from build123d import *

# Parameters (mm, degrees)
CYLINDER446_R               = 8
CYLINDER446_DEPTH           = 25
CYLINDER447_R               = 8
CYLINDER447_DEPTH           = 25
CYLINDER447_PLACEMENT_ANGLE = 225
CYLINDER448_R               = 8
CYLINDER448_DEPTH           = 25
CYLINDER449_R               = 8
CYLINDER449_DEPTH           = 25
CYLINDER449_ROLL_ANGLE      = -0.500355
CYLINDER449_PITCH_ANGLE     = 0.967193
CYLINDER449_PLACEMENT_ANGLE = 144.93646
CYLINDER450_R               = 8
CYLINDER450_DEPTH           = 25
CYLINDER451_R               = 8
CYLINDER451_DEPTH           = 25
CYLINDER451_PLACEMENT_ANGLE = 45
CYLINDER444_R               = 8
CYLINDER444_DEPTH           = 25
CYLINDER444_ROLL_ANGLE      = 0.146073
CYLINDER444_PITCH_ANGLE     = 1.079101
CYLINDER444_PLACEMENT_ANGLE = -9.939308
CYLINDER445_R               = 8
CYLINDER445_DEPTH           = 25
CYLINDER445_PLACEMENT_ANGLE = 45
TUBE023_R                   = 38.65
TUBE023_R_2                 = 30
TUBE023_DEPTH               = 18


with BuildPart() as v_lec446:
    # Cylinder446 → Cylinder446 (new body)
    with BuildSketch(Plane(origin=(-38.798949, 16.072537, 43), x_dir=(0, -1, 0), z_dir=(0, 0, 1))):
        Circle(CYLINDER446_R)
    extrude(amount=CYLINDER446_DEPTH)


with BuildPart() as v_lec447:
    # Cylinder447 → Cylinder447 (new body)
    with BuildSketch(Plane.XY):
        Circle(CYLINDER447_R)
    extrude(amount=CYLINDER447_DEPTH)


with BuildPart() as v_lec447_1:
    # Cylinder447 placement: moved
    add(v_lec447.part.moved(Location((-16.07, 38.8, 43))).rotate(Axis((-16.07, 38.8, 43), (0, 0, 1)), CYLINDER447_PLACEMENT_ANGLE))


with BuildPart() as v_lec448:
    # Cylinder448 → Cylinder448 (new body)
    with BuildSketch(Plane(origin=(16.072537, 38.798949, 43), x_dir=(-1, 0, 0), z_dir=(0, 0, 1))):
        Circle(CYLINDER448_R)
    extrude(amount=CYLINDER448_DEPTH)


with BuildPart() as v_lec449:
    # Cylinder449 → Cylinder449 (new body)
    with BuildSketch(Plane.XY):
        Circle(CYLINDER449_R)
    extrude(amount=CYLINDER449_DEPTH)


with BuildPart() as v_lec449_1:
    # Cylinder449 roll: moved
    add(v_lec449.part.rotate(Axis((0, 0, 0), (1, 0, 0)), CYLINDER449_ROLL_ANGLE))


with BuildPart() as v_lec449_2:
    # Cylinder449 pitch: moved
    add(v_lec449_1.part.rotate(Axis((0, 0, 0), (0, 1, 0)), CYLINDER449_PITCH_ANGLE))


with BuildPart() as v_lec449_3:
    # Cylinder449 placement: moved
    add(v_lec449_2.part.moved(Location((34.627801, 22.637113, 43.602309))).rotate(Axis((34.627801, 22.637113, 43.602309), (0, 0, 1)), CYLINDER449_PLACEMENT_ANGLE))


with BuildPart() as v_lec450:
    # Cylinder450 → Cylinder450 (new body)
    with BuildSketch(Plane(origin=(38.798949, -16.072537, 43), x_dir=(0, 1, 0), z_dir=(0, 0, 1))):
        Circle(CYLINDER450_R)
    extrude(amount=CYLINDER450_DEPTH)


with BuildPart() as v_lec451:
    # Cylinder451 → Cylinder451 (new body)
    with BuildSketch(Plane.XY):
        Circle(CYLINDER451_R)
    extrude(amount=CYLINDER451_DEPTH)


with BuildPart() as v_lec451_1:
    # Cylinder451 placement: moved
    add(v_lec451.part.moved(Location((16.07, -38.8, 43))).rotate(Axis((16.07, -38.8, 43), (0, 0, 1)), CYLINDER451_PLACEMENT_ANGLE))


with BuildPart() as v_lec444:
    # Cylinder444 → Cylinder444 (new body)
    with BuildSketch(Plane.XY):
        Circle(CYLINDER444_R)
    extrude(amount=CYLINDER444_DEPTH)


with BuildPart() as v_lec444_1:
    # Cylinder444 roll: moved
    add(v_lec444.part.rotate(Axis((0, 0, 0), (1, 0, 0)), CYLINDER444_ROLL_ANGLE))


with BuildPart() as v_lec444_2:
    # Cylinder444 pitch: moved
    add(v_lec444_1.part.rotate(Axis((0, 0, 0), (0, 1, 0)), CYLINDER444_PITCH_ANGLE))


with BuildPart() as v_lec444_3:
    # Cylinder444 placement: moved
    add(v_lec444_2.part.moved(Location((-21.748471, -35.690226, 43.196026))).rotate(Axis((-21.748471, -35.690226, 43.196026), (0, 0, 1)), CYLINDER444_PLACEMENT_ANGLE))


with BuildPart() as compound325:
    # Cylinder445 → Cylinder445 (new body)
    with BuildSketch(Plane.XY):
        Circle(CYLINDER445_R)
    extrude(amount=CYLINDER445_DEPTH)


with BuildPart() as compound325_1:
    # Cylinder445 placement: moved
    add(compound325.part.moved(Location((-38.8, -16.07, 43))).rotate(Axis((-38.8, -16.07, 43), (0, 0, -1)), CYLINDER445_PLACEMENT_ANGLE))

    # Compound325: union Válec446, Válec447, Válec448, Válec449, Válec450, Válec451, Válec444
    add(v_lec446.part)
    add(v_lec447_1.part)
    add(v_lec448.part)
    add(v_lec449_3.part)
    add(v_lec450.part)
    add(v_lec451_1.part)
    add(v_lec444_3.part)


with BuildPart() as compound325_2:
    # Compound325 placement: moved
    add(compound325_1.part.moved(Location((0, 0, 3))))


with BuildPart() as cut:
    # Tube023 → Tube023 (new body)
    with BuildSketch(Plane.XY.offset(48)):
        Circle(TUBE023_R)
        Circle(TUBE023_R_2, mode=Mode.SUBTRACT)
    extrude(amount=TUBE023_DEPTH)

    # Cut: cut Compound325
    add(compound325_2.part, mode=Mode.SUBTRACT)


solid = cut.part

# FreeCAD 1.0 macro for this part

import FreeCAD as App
import Part
import Sketcher

doc = App.newDocument("Part")
params = doc.addObject("Spreadsheet::Sheet", "Params")
for row, (alias, value) in enumerate([
    ("sketch1_diameter", "16 mm"),
    ("pad1_length", "25 mm"),
    ("sketch2_diameter", "16 mm"),
    ("pad2_length", "25 mm"),
    ("sketch3_diameter", "16 mm"),
    ("pad3_length", "25 mm"),
    ("sketch4_diameter", "16 mm"),
    ("pad4_length", "25 mm"),
    ("sketch5_diameter", "16 mm"),
    ("pad5_length", "25 mm"),
    ("sketch6_diameter", "16 mm"),
    ("pad6_length", "25 mm"),
    ("sketch7_diameter", "16 mm"),
    ("pad7_length", "25 mm"),
    ("sketch8_diameter", "16 mm"),
    ("pad8_length", "25 mm"),
    ("sketch9_diameter", "60 mm"),
    ("sketch9_diameter2", "77.3 mm"),
    ("pad9_length", "18 mm"),
], start=1):
    params.set(f"A{row}", alias)
    params.set(f"B{row}", "=" + value)
    params.setAlias(f"B{row}", alias)

body = doc.addObject("PartDesign::Body", "Body")

# Sketch on XY plane
sketch1 = body.newObject("Sketcher::SketchObject", "Sketch")
sketch1.AttachmentSupport = (doc.getObject("XY_Plane"), [""])
sketch1.MapMode = "FlatFace"
sketch1.AttachmentOffset = App.Placement(App.Vector(0, 0, 43), App.Rotation())
sketch1.addGeometry(Part.Circle(App.Vector(-39, 16, 0), App.Vector(0, 0, 1), 8), False)
sketch1.addConstraint(Sketcher.Constraint("Diameter", 0, 16.0))
sketch1.addConstraint(Sketcher.Constraint("DistanceX", 0, 3, -1, 1, 38.798949))
sketch1.addConstraint(Sketcher.Constraint("DistanceY", -1, 1, 0, 3, 16.072537))
sketch1.setExpression("Constraints[0]", "Params.sketch1_diameter")
pad1 = body.newObject("PartDesign::Pad", "Pad")
pad1.Profile = sketch1
pad1.setExpression("Length", "Params.pad1_length")
body2 = doc.addObject("PartDesign::Body", "Body001")

# Sketch on XY plane
sketch2 = body2.newObject("Sketcher::SketchObject", "Sketch001")
sketch2.AttachmentSupport = (doc.getObject("XY_Plane001"), [""])
sketch2.MapMode = "FlatFace"
sketch2.addGeometry(Part.Circle(App.Vector(0, 0, 0), App.Vector(0, 0, 1), 8), False)
sketch2.addConstraint(Sketcher.Constraint("Coincident", 0, 3, -1, 1))
sketch2.addConstraint(Sketcher.Constraint("Diameter", 0, 16.0))
sketch2.setExpression("Constraints[1]", "Params.sketch2_diameter")
pad2 = body2.newObject("PartDesign::Pad", "Pad001")
pad2.Profile = sketch2
pad2.setExpression("Length", "Params.pad2_length")
body3 = doc.addObject("PartDesign::Body", "Body002")
doc.recompute()

body2.Placement = App.Placement(App.Vector(-16.07, 38.8, 43), App.Rotation(App.Vector(0, 0, 1), 225))
boolean = body3.newObject("PartDesign::Boolean", "Boolean")
boolean.Type = "Fuse"
boolean.addObjects([body2])
body4 = doc.addObject("PartDesign::Body", "Body003")

# Sketch on XY plane
sketch3 = body4.newObject("Sketcher::SketchObject", "Sketch002")
sketch3.AttachmentSupport = (doc.getObject("XY_Plane003"), [""])
sketch3.MapMode = "FlatFace"
sketch3.AttachmentOffset = App.Placement(App.Vector(0, 0, 43), App.Rotation())
sketch3.addGeometry(Part.Circle(App.Vector(16, 39, 0), App.Vector(0, 0, 1), 8), False)
sketch3.addConstraint(Sketcher.Constraint("Diameter", 0, 16.0))
sketch3.addConstraint(Sketcher.Constraint("DistanceY", -1, 1, 0, 3, 38.798949))
sketch3.addConstraint(Sketcher.Constraint("DistanceX", -1, 1, 0, 3, 16.072537))
sketch3.setExpression("Constraints[0]", "Params.sketch3_diameter")
pad3 = body4.newObject("PartDesign::Pad", "Pad002")
pad3.Profile = sketch3
pad3.setExpression("Length", "Params.pad3_length")
body5 = doc.addObject("PartDesign::Body", "Body004")

# Sketch on XY plane
sketch4 = body5.newObject("Sketcher::SketchObject", "Sketch003")
sketch4.AttachmentSupport = (doc.getObject("XY_Plane004"), [""])
sketch4.MapMode = "FlatFace"
sketch4.addGeometry(Part.Circle(App.Vector(0, 0, 0), App.Vector(0, 0, 1), 8), False)
sketch4.addConstraint(Sketcher.Constraint("Coincident", 0, 3, -1, 1))
sketch4.addConstraint(Sketcher.Constraint("Diameter", 0, 16.0))
sketch4.setExpression("Constraints[1]", "Params.sketch4_diameter")
pad4 = body5.newObject("PartDesign::Pad", "Pad003")
pad4.Profile = sketch4
pad4.setExpression("Length", "Params.pad4_length")
body6 = doc.addObject("PartDesign::Body", "Body005")
doc.recompute()

body5.Placement = App.Placement(App.Vector(0, 0, 0), App.Rotation(App.Vector(1, 0, 0), 359.499645))
boolean2 = body6.newObject("PartDesign::Boolean", "Boolean001")
boolean2.Type = "Fuse"
boolean2.addObjects([body5])
body7 = doc.addObject("PartDesign::Body", "Body006")
doc.recompute()

body6.Placement = App.Placement(App.Vector(0, 0, 0), App.Rotation(App.Vector(0, 1, 0), 0.967193))
boolean3 = body7.newObject("PartDesign::Boolean", "Boolean002")
boolean3.Type = "Fuse"
boolean3.addObjects([body6])
body8 = doc.addObject("PartDesign::Body", "Body007")
doc.recompute()

body7.Placement = App.Placement(App.Vector(34.627801, 22.637113, 43.602309), App.Rotation(App.Vector(0, 0, 1), 144.93646))
boolean4 = body8.newObject("PartDesign::Boolean", "Boolean003")
boolean4.Type = "Fuse"
boolean4.addObjects([body7])
body9 = doc.addObject("PartDesign::Body", "Body008")

# Sketch on XY plane
sketch5 = body9.newObject("Sketcher::SketchObject", "Sketch004")
sketch5.AttachmentSupport = (doc.getObject("XY_Plane008"), [""])
sketch5.MapMode = "FlatFace"
sketch5.AttachmentOffset = App.Placement(App.Vector(0, 0, 43), App.Rotation())
sketch5.addGeometry(Part.Circle(App.Vector(39, -16, 0), App.Vector(0, 0, 1), 8), False)
sketch5.addConstraint(Sketcher.Constraint("Diameter", 0, 16.0))
sketch5.addConstraint(Sketcher.Constraint("DistanceX", -1, 1, 0, 3, 38.798949))
sketch5.addConstraint(Sketcher.Constraint("DistanceY", 0, 3, -1, 1, 16.072537))
sketch5.setExpression("Constraints[0]", "Params.sketch5_diameter")
pad5 = body9.newObject("PartDesign::Pad", "Pad004")
pad5.Profile = sketch5
pad5.setExpression("Length", "Params.pad5_length")
body10 = doc.addObject("PartDesign::Body", "Body009")

# Sketch on XY plane
sketch6 = body10.newObject("Sketcher::SketchObject", "Sketch005")
sketch6.AttachmentSupport = (doc.getObject("XY_Plane009"), [""])
sketch6.MapMode = "FlatFace"
sketch6.addGeometry(Part.Circle(App.Vector(0, 0, 0), App.Vector(0, 0, 1), 8), False)
sketch6.addConstraint(Sketcher.Constraint("Coincident", 0, 3, -1, 1))
sketch6.addConstraint(Sketcher.Constraint("Diameter", 0, 16.0))
sketch6.setExpression("Constraints[1]", "Params.sketch6_diameter")
pad6 = body10.newObject("PartDesign::Pad", "Pad005")
pad6.Profile = sketch6
pad6.setExpression("Length", "Params.pad6_length")
body11 = doc.addObject("PartDesign::Body", "Body010")
doc.recompute()

body10.Placement = App.Placement(App.Vector(16.07, -38.8, 43), App.Rotation(App.Vector(0, 0, 1), 45))
boolean5 = body11.newObject("PartDesign::Boolean", "Boolean004")
boolean5.Type = "Fuse"
boolean5.addObjects([body10])
body12 = doc.addObject("PartDesign::Body", "Body011")

# Sketch on XY plane
sketch7 = body12.newObject("Sketcher::SketchObject", "Sketch006")
sketch7.AttachmentSupport = (doc.getObject("XY_Plane011"), [""])
sketch7.MapMode = "FlatFace"
sketch7.addGeometry(Part.Circle(App.Vector(0, 0, 0), App.Vector(0, 0, 1), 8), False)
sketch7.addConstraint(Sketcher.Constraint("Coincident", 0, 3, -1, 1))
sketch7.addConstraint(Sketcher.Constraint("Diameter", 0, 16.0))
sketch7.setExpression("Constraints[1]", "Params.sketch7_diameter")
pad7 = body12.newObject("PartDesign::Pad", "Pad006")
pad7.Profile = sketch7
pad7.setExpression("Length", "Params.pad7_length")
body13 = doc.addObject("PartDesign::Body", "Body012")
doc.recompute()

body12.Placement = App.Placement(App.Vector(0, 0, 0), App.Rotation(App.Vector(1, 0, 0), 0.146073))
boolean6 = body13.newObject("PartDesign::Boolean", "Boolean005")
boolean6.Type = "Fuse"
boolean6.addObjects([body12])
body14 = doc.addObject("PartDesign::Body", "Body013")
doc.recompute()

body13.Placement = App.Placement(App.Vector(0, 0, 0), App.Rotation(App.Vector(0, 1, 0), 1.079101))
boolean7 = body14.newObject("PartDesign::Boolean", "Boolean006")
boolean7.Type = "Fuse"
boolean7.addObjects([body13])
body15 = doc.addObject("PartDesign::Body", "Body014")
doc.recompute()

body14.Placement = App.Placement(App.Vector(-21.748471, -35.690226, 43.196026), App.Rotation(App.Vector(0, 0, 1), 350.060692))
boolean8 = body15.newObject("PartDesign::Boolean", "Boolean007")
boolean8.Type = "Fuse"
boolean8.addObjects([body14])
body16 = doc.addObject("PartDesign::Body", "Body015")

# Sketch on XY plane
sketch8 = body16.newObject("Sketcher::SketchObject", "Sketch007")
sketch8.AttachmentSupport = (doc.getObject("XY_Plane015"), [""])
sketch8.MapMode = "FlatFace"
sketch8.addGeometry(Part.Circle(App.Vector(0, 0, 0), App.Vector(0, 0, 1), 8), False)
sketch8.addConstraint(Sketcher.Constraint("Coincident", 0, 3, -1, 1))
sketch8.addConstraint(Sketcher.Constraint("Diameter", 0, 16.0))
sketch8.setExpression("Constraints[1]", "Params.sketch8_diameter")
pad8 = body16.newObject("PartDesign::Pad", "Pad007")
pad8.Profile = sketch8
pad8.setExpression("Length", "Params.pad8_length")
body17 = doc.addObject("PartDesign::Body", "Body016")
body17.AllowCompound = True
doc.recompute()

body16.Placement = App.Placement(App.Vector(-38.8, -16.07, 43), App.Rotation(App.Vector(0, 0, -1), 45))
boolean9 = body17.newObject("PartDesign::Boolean", "Boolean008")
boolean9.Type = "Fuse"
boolean9.addObjects([body16])
doc.recompute()

boolean10 = body17.newObject("PartDesign::Boolean", "Boolean009")
boolean10.Type = "Fuse"
boolean10.addObjects([body])
doc.recompute()

boolean11 = body17.newObject("PartDesign::Boolean", "Boolean010")
boolean11.Type = "Fuse"
boolean11.addObjects([body3])
doc.recompute()

boolean12 = body17.newObject("PartDesign::Boolean", "Boolean011")
boolean12.Type = "Fuse"
boolean12.addObjects([body4])
doc.recompute()

boolean13 = body17.newObject("PartDesign::Boolean", "Boolean012")
boolean13.Type = "Fuse"
boolean13.addObjects([body8])
doc.recompute()

boolean14 = body17.newObject("PartDesign::Boolean", "Boolean013")
boolean14.Type = "Fuse"
boolean14.addObjects([body9])
doc.recompute()

boolean15 = body17.newObject("PartDesign::Boolean", "Boolean014")
boolean15.Type = "Fuse"
boolean15.addObjects([body11])
doc.recompute()

boolean16 = body17.newObject("PartDesign::Boolean", "Boolean015")
boolean16.Type = "Fuse"
boolean16.addObjects([body15])
body18 = doc.addObject("PartDesign::Body", "Body017")
body18.AllowCompound = True
doc.recompute()

body17.Placement = App.Placement(App.Vector(0, 0, 3), App.Rotation(App.Vector(0, 0, 1), 0))
boolean17 = body18.newObject("PartDesign::Boolean", "Boolean016")
boolean17.Type = "Fuse"
boolean17.addObjects([body17])
body19 = doc.addObject("PartDesign::Body", "Body018")

# Sketch on XY plane
sketch9 = body19.newObject("Sketcher::SketchObject", "Sketch008")
sketch9.AttachmentSupport = (doc.getObject("XY_Plane018"), [""])
sketch9.MapMode = "FlatFace"
sketch9.AttachmentOffset = App.Placement(App.Vector(0, 0, 48), App.Rotation())
sketch9.addGeometry(Part.Circle(App.Vector(0, 0, 0), App.Vector(0, 0, 1), 39), False)
sketch9.addGeometry(Part.Circle(App.Vector(0, 0, 0), App.Vector(0, 0, 1), 30), False)
sketch9.addConstraint(Sketcher.Constraint("Coincident", 0, 3, -1, 1))
sketch9.addConstraint(Sketcher.Constraint("Coincident", 1, 3, -1, 1))
sketch9.addConstraint(Sketcher.Constraint("Diameter", 1, 60.0))
sketch9.addConstraint(Sketcher.Constraint("Diameter", 0, 77.3))
sketch9.setExpression("Constraints[2]", "Params.sketch9_diameter")
sketch9.setExpression("Constraints[3]", "Params.sketch9_diameter2")
pad9 = body19.newObject("PartDesign::Pad", "Pad008")
pad9.Profile = sketch9
pad9.setExpression("Length", "Params.pad9_length")
doc.recompute()

boolean18 = body19.newObject("PartDesign::Boolean", "Boolean017")
boolean18.Type = "Cut"
boolean18.addObjects([body18])

doc.recompute()
